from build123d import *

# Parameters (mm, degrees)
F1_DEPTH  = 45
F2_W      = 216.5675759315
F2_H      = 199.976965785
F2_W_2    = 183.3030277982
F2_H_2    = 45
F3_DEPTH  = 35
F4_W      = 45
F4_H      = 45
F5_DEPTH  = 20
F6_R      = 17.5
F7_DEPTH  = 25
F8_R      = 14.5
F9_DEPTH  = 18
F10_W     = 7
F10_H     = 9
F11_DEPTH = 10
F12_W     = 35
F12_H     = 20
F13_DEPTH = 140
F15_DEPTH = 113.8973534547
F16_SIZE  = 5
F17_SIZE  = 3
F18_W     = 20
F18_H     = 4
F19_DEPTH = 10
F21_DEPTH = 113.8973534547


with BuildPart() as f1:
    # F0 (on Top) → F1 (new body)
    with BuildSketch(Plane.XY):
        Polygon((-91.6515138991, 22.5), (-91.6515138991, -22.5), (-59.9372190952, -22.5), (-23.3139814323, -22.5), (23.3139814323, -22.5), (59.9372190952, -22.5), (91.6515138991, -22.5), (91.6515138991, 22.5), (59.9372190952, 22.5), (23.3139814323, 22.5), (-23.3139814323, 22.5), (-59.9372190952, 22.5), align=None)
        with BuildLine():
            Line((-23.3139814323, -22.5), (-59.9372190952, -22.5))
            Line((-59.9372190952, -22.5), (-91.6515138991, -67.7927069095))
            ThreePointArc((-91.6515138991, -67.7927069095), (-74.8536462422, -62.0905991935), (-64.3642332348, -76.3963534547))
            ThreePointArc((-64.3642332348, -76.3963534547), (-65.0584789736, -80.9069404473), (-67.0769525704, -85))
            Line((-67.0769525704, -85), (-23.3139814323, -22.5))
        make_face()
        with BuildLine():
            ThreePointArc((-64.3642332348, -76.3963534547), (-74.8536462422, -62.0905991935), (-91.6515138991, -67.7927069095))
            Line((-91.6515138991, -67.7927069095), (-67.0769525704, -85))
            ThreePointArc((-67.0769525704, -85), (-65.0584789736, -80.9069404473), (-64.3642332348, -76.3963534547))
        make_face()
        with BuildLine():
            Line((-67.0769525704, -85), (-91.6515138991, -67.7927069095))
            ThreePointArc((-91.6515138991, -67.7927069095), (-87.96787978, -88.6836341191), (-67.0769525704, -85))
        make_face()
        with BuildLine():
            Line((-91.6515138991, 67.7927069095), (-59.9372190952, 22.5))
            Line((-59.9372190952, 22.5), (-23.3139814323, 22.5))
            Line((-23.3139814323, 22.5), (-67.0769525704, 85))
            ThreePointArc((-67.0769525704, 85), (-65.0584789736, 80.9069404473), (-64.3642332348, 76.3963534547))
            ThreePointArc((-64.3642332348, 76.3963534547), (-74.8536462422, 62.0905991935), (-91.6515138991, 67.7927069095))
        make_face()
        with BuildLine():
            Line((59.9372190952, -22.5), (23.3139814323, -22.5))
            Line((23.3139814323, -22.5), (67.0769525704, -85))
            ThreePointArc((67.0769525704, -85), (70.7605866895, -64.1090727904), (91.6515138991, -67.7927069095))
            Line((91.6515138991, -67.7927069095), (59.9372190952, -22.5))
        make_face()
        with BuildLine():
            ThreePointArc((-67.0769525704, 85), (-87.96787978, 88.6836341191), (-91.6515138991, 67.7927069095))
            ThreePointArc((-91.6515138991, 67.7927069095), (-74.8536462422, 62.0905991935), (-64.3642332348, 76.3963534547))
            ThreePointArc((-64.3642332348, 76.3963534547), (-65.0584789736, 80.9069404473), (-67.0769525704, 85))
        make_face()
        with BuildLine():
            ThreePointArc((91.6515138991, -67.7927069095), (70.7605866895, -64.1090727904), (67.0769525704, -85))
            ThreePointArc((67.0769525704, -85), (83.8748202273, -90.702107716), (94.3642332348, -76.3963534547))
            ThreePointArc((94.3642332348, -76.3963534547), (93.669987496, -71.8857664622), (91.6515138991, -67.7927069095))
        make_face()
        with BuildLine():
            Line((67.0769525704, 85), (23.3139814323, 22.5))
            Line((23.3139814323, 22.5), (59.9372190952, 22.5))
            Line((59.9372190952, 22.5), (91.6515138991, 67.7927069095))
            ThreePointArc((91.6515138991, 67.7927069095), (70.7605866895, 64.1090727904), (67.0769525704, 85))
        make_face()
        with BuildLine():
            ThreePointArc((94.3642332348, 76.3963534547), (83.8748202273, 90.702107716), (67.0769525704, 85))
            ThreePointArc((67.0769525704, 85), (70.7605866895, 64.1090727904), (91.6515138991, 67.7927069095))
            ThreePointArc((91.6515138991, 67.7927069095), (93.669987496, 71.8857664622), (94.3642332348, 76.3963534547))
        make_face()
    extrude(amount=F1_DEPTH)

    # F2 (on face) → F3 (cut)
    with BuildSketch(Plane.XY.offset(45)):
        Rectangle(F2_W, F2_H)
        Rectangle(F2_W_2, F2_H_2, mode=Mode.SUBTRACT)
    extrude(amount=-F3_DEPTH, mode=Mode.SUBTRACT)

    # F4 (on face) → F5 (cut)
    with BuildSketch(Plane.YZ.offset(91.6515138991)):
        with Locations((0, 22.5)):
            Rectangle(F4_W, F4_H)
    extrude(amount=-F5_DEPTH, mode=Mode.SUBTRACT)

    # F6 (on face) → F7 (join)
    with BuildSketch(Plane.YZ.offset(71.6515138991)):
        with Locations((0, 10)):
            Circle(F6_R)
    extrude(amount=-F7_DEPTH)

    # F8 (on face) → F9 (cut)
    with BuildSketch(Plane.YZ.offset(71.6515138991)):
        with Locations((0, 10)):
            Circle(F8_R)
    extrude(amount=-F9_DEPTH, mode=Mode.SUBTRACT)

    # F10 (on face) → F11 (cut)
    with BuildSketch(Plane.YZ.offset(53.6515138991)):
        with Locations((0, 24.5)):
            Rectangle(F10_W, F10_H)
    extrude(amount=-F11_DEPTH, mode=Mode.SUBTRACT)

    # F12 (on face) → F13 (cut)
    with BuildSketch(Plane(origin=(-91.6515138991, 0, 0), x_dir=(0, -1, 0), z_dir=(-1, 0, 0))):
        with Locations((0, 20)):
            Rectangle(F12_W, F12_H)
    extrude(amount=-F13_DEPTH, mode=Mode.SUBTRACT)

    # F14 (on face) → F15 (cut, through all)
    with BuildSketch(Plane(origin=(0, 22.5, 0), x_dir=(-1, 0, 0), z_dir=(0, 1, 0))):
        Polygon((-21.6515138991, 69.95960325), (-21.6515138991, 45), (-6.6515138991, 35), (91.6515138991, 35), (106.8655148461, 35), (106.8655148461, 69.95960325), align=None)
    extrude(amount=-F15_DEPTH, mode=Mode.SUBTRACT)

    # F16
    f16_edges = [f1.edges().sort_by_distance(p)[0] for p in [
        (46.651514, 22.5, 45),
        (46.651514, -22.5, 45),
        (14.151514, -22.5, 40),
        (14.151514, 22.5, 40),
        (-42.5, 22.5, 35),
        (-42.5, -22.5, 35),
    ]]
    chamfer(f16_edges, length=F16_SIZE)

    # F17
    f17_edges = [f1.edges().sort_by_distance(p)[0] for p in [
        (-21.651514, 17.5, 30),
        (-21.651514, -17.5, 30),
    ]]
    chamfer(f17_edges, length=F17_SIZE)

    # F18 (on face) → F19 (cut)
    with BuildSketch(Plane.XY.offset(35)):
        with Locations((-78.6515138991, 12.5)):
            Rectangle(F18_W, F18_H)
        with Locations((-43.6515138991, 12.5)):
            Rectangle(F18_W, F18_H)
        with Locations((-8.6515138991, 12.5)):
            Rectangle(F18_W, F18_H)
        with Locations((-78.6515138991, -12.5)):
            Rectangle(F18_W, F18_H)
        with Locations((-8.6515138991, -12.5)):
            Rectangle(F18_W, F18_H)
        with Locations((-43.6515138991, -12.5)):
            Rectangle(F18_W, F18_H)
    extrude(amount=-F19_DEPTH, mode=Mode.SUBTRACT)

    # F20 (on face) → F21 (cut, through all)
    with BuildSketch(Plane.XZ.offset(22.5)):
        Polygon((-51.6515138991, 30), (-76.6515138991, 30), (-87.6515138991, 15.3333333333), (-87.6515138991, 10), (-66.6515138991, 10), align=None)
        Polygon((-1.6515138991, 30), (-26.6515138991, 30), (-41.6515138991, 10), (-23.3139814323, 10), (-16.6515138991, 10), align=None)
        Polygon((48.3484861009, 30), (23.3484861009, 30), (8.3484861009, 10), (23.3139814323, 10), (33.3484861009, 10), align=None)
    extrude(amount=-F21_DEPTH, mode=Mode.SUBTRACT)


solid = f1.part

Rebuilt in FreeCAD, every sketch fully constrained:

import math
import FreeCAD as App
import Part
import Sketcher

V = App.Vector
Q = App.Units.Quantity


def edges_at(feature, points):
    """Names of the edges that pass closest to the given points."""
    edges = feature.Shape.Edges
    near = lambda p: min(range(len(edges)), key=lambda i: edges[i].distToShape(Part.Vertex(*p))[0])
    return sorted({f"Edge{near(p) + 1}" for p in points})

doc = App.newDocument("Part")
params = doc.addObject("Spreadsheet::Sheet", "Params")
for row, (alias, value) in enumerate([
    ("sketch1_radius", "15 mm"),
    ("sketch1_height", "45 mm"),
    ("pad1_length", "45 mm"),
    ("sketch2_height", "45 mm"),
    ("pocket1_length", "35 mm"),
    ("sketch3_width", "45 mm"),
    ("pocket2_length", "20 mm"),
    ("sketch4_diameter", "35 mm"),
    ("pad2_length", "25 mm"),
    ("sketch5_diameter", "29 mm"),
    ("pocket3_length", "18 mm"),
    ("sketch6_width", "7 mm"),
    ("sketch6_height", "9 mm"),
    ("pocket4_length", "10 mm"),
    ("sketch7_width", "35 mm"),
    ("sketch7_height", "20 mm"),
    ("pocket5_length", "140 mm"),
    ("chamfer_size", "5 mm"),
    ("chamfer2_size", "3 mm"),
    ("sketch9_width", "20 mm"),
    ("sketch9_height", "4 mm"),
    ("pocket7_length", "10 mm"),
    ("sketch10_width", "25 mm"),
    ("sketch10_width2", "21 mm"),
    ("sketch10_length", "25 mm"),
], start=1):
    params.set(f"A{row}", alias)
    params.set(f"B{row}", "=" + value)
    params.setAlias(f"B{row}", alias)

body = doc.addObject("PartDesign::Body", "Body")

# Sketch on XY plane
sketch1 = body.newObject("Sketcher::SketchObject", "Sketch")
sketch1.AttachmentSupport = (doc.getObject("XY_Plane"), [""])
sketch1.MapMode = "FlatFace"
sketch1.addGeometry([
    Part.LineSegment(V(-91.651514, 22.5, 0), V(-91.651514, -22.5, 0)),  # 0
    Part.LineSegment(V(-91.651514, -22.5, 0), V(-59.937219, -22.5, 0)),  # 1
    Part.LineSegment(V(-59.937219, -22.5, 0), V(-91.651514, -67.792707, 0)),  # 2
    Part.ArcOfCircle(Part.Circle(V(-79.364233, -76.396353, 0), V(0, 0, 1), 15), math.radians(145), math.radians(325)),  # 3
    Part.LineSegment(V(-67.076953, -85, 0), V(-23.313981, -22.5, 0)),  # 4
    Part.LineSegment(V(-23.313981, -22.5, 0), V(23.313981, -22.5, 0)),  # 5
    Part.LineSegment(V(23.313981, -22.5, 0), V(67.076953, -85, 0)),  # 6
    Part.ArcOfCircle(Part.Circle(V(79.364233, -76.396353, 0), V(0, 0, 1), 15), math.radians(-145), math.radians(0)),  # 7
    Part.ArcOfCircle(Part.Circle(V(79.364233, -76.396353, 0), V(0, 0, 1), 15), math.radians(0), math.radians(35)),  # 8
    Part.LineSegment(V(91.651514, -67.792707, 0), V(59.937219, -22.5, 0)),  # 9
    Part.LineSegment(V(59.937219, -22.5, 0), V(91.651514, -22.5, 0)),  # 10
    Part.LineSegment(V(91.651514, -22.5, 0), V(91.651514, 22.5, 0)),  # 11
    Part.LineSegment(V(91.651514, 22.5, 0), V(59.937219, 22.5, 0)),  # 12
    Part.LineSegment(V(59.937219, 22.5, 0), V(91.651514, 67.792707, 0)),  # 13
    Part.ArcOfCircle(Part.Circle(V(79.364233, 76.396353, 0), V(0, 0, 1), 15), math.radians(-35), math.radians(0)),  # 14
    Part.ArcOfCircle(Part.Circle(V(79.364233, 76.396353, 0), V(0, 0, 1), 15), math.radians(0), math.radians(145)),  # 15
    Part.LineSegment(V(67.076953, 85, 0), V(23.313981, 22.5, 0)),  # 16
    Part.LineSegment(V(23.313981, 22.5, 0), V(-23.313981, 22.5, 0)),  # 17
    Part.LineSegment(V(-23.313981, 22.5, 0), V(-67.076953, 85, 0)),  # 18
    Part.ArcOfCircle(Part.Circle(V(-79.364233, 76.396353, 0), V(0, 0, 1), 15), math.radians(35), math.radians(215)),  # 19
    Part.LineSegment(V(-91.651514, 67.792707, 0), V(-59.937219, 22.5, 0)),  # 20
    Part.LineSegment(V(-59.937219, 22.5, 0), V(-91.651514, 22.5, 0)),  # 21
], False)
sketch1.addConstraint([
    Sketcher.Constraint("Coincident", 0, 2, 1, 1),
    Sketcher.Constraint("Coincident", 1, 2, 2, 1),
    Sketcher.Constraint("Tangent", 2, 2, 3, 1),
    Sketcher.Constraint("Tangent", 3, 2, 4, 1),
    Sketcher.Constraint("Coincident", 4, 2, 5, 1),
    Sketcher.Constraint("Coincident", 5, 2, 6, 1),
    Sketcher.Constraint("Tangent", 6, 2, 7, 1),
    Sketcher.Constraint("Tangent", 7, 2, 8, 1),
    Sketcher.Constraint("Tangent", 8, 2, 9, 1),
    Sketcher.Constraint("Coincident", 9, 2, 10, 1),
    Sketcher.Constraint("Coincident", 10, 2, 11, 1),
    Sketcher.Constraint("Coincident", 11, 2, 12, 1),
    Sketcher.Constraint("Coincident", 12, 2, 13, 1),
    Sketcher.Constraint("Tangent", 13, 2, 14, 1),
    Sketcher.Constraint("Tangent", 14, 2, 15, 1),
    Sketcher.Constraint("Tangent", 15, 2, 16, 1),
    Sketcher.Constraint("Coincident", 16, 2, 17, 1),
    Sketcher.Constraint("Coincident", 17, 2, 18, 1),
    Sketcher.Constraint("Tangent", 18, 2, 19, 1),
    Sketcher.Constraint("Tangent", 19, 2, 20, 1),
    Sketcher.Constraint("Coincident", 20, 2, 21, 1),
    Sketcher.Constraint("Coincident", 21, 2, 0, 1),
    Sketcher.Constraint("Vertical", 0),
    Sketcher.Constraint("Horizontal", 1),
    Sketcher.Constraint("Horizontal", 5),
    Sketcher.Constraint("Horizontal", 10),
    Sketcher.Constraint("Vertical", 11),
    Sketcher.Constraint("Horizontal", 12),
    Sketcher.Constraint("Horizontal", 17),
    Sketcher.Constraint("Horizontal", 21),
    Sketcher.Constraint("Equal", 3, 7),
    Sketcher.Constraint("Equal", 7, 8),
    Sketcher.Constraint("Equal", 8, 14),
    Sketcher.Constraint("Equal", 14, 15),
    Sketcher.Constraint("Equal", 15, 19),
    Sketcher.Constraint("Symmetric", 3, 3, 14, 3, -1, 1),
    Sketcher.Constraint("Symmetric", 7, 3, 19, 3, -1, 1),
    Sketcher.Constraint("Symmetric", 0, 2, 11, 2, -1, 1),
    Sketcher.Constraint("Symmetric", 4, 2, 16, 2, -1, 1),
    Sketcher.Constraint("Symmetric", 9, 2, 20, 2, -1, 1),
    Sketcher.Constraint("Symmetric", 3, 3, 7, 3, -2),
    Sketcher.Constraint("Symmetric", 1, 2, 9, 2, -2),
    Sketcher.Constraint("Parallel", 2, 4),
    Sketcher.Constraint("Parallel", 6, 9),
    Sketcher.Constraint("Parallel", 4, 13),
    Sketcher.Constraint("Parallel", 9, 18),
    Sketcher.Constraint("Horizontal", 1, 2, 4, 2),
    Sketcher.Constraint("Horizontal", 8, 3, 7, 2),
    Sketcher.Constraint("Horizontal", 19, 3, 14, 2),
    Sketcher.Constraint("Vertical", 0, 2, 2, 2),
    Sketcher.Constraint("Radius", 3, Q("15 mm")),
    Sketcher.Constraint("DistanceY", 0, 2, 0, 1, Q("45 mm")),
    Sketcher.Constraint("Angle", 2, Q("-125 deg")),
    Sketcher.Constraint("DistanceY", 3, 2, -1, 1, Q("85 mm")),
    Sketcher.Constraint("DistanceX", 1, 2, 5, 2, Q("83.251201 mm")),
])
sketch1.setExpression("Constraints[50]", "Params.sketch1_radius")
sketch1.setExpression("Constraints[51]", "Params.sketch1_height")
pad1 = body.newObject("PartDesign::Pad", "Pad")
pad1.Profile = sketch1
pad1.setExpression("Length", "Params.pad1_length")

# Sketch on XY plane
sketch2 = body.newObject("Sketcher::SketchObject", "Sketch001")
sketch2.AttachmentSupport = (doc.getObject("XY_Plane"), [""])
sketch2.MapMode = "FlatFace"
sketch2.AttachmentOffset = App.Placement(V(0, 0, 45), App.Rotation())
sketch2.addGeometry([
    Part.LineSegment(V(-108.283788, 99.988483, 0), V(-108.283788, -99.988483, 0)),  # 0
    Part.LineSegment(V(-108.283788, -99.988483, 0), V(108.283788, -99.988483, 0)),  # 1
    Part.LineSegment(V(108.283788, -99.988483, 0), V(108.283788, 99.988483, 0)),  # 2
    Part.LineSegment(V(108.283788, 99.988483, 0), V(-108.283788, 99.988483, 0)),  # 3
    Part.LineSegment(V(91.651514, -22.5, 0), V(-91.651514, -22.5, 0)),  # 4
    Part.LineSegment(V(-91.651514, -22.5, 0), V(-91.651514, 22.5, 0)),  # 5
    Part.LineSegment(V(-91.651514, 22.5, 0), V(91.651514, 22.5, 0)),  # 6
    Part.LineSegment(V(91.651514, 22.5, 0), V(91.651514, -22.5, 0)),  # 7
], False)
sketch2.addConstraint([
    Sketcher.Constraint("Coincident", 0, 2, 1, 1),
    Sketcher.Constraint("Coincident", 1, 2, 2, 1),
    Sketcher.Constraint("Coincident", 2, 2, 3, 1),
    Sketcher.Constraint("Coincident", 3, 2, 0, 1),
    Sketcher.Constraint("Coincident", 4, 2, 5, 1),
    Sketcher.Constraint("Coincident", 5, 2, 6, 1),
    Sketcher.Constraint("Coincident", 6, 2, 7, 1),
    Sketcher.Constraint("Coincident", 7, 2, 4, 1),
    Sketcher.Constraint("Vertical", 0),
    Sketcher.Constraint("Horizontal", 1),
    Sketcher.Constraint("Vertical", 2),
    Sketcher.Constraint("Horizontal", 3),
    Sketcher.Constraint("Horizontal", 4),
    Sketcher.Constraint("Vertical", 5),
    Sketcher.Constraint("Horizontal", 6),
    Sketcher.Constraint("Vertical", 7),
    Sketcher.Constraint("Symmetric", 0, 2, 2, 2, -1, 1),
    Sketcher.Constraint("Symmetric", 4, 2, 6, 2, -1, 1),
    Sketcher.Constraint("DistanceY", 5, 1, 5, 2, Q("45 mm")),
    Sketcher.Constraint("DistanceX", 4, 2, 1, 2, Q("199.935302 mm")),
    Sketcher.Constraint("DistanceX", 1, 1, 1, 2, Q("216.567576 mm")),
    Sketcher.Constraint("DistanceY", 0, 2, 0, 1, Q("199.976966 mm")),
])
sketch2.setExpression("Constraints[18]", "Params.sketch2_height")
pocket1 = body.newObject("PartDesign::Pocket", "Pocket")
pocket1.Profile = sketch2
pocket1.setExpression("Length", "Params.pocket1_length")

# Sketch on YZ plane
sketch3 = body.newObject("Sketcher::SketchObject", "Sketch002")
sketch3.AttachmentSupport = (doc.getObject("YZ_Plane"), [""])
sketch3.MapMode = "FlatFace"
sketch3.AttachmentOffset = App.Placement(V(0, 0, 91.651514), App.Rotation())
sketch3.addGeometry([
    Part.LineSegment(V(-22.5, 45, 0), V(-22.5, 0, 0)),
    Part.LineSegment(V(-22.5, 0, 0), V(22.5, 0, 0)),
    Part.LineSegment(V(22.5, 0, 0), V(22.5, 45, 0)),
    Part.LineSegment(V(22.5, 45, 0), V(-22.5, 45, 0)),
], False)
sketch3.addConstraint([
    Sketcher.Constraint("Coincident", 0, 2, 1, 1),
    Sketcher.Constraint("Coincident", 1, 2, 2, 1),
    Sketcher.Constraint("Coincident", 2, 2, 3, 1),
    Sketcher.Constraint("Coincident", 3, 2, 0, 1),
    Sketcher.Constraint("Vertical", 0),
    Sketcher.Constraint("Horizontal", 1),
    Sketcher.Constraint("Vertical", 2),
    Sketcher.Constraint("Horizontal", 3),
    Sketcher.Constraint("Symmetric", 0, 2, 1, 2, -1, 1),
    Sketcher.Constraint("Equal", 3, 0),
    Sketcher.Constraint("DistanceX", 1, 1, 1, 2, Q("45 mm")),
])
sketch3.setExpression("Constraints[10]", "Params.sketch3_width")
pocket2 = body.newObject("PartDesign::Pocket", "Pocket001")
pocket2.Profile = sketch3
pocket2.setExpression("Length", "Params.pocket2_length")

# Sketch on YZ plane
sketch4 = body.newObject("Sketcher::SketchObject", "Sketch003")
sketch4.AttachmentSupport = (doc.getObject("YZ_Plane"), [""])
sketch4.MapMode = "FlatFace"
sketch4.AttachmentOffset = App.Placement(V(0, 0, 71.651514), App.Rotation())
sketch4.addGeometry(Part.Circle(V(0, 10, 0), V(0, 0, 1), 17.5), False)
sketch4.addConstraint([
    Sketcher.Constraint("PointOnObject", 0, 3, -2),
    Sketcher.Constraint("Diameter", 0, Q("35 mm")),
    Sketcher.Constraint("DistanceY", -1, 1, 0, 3, Q("10 mm")),
])
sketch4.setExpression("Constraints[1]", "Params.sketch4_diameter")
pad2 = body.newObject("PartDesign::Pad", "Pad001")
pad2.Profile = sketch4
pad2.setExpression("Length", "Params.pad2_length")
pad2.Reversed = True

# Sketch on YZ plane
sketch5 = body.newObject("Sketcher::SketchObject", "Sketch004")
sketch5.AttachmentSupport = (doc.getObject("YZ_Plane"), [""])
sketch5.MapMode = "FlatFace"
sketch5.AttachmentOffset = App.Placement(V(0, 0, 71.651514), App.Rotation())
sketch5.addGeometry(Part.Circle(V(0, 10, 0), V(0, 0, 1), 14.5), False)
sketch5.addConstraint([
    Sketcher.Constraint("PointOnObject", 0, 3, -2),
    Sketcher.Constraint("Diameter", 0, Q("29 mm")),
    Sketcher.Constraint("DistanceY", -1, 1, 0, 3, Q("10 mm")),
])
sketch5.setExpression("Constraints[1]", "Params.sketch5_diameter")
pocket3 = body.newObject("PartDesign::Pocket", "Pocket002")
pocket3.Profile = sketch5
pocket3.setExpression("Length", "Params.pocket3_length")

# Sketch on YZ plane
sketch6 = body.newObject("Sketcher::SketchObject", "Sketch005")
sketch6.AttachmentSupport = (doc.getObject("YZ_Plane"), [""])
sketch6.MapMode = "FlatFace"
sketch6.AttachmentOffset = App.Placement(V(0, 0, 53.651514), App.Rotation())
sketch6.addGeometry([
    Part.LineSegment(V(-3.5, 29, 0), V(-3.5, 20, 0)),
    Part.LineSegment(V(-3.5, 20, 0), V(3.5, 20, 0)),
    Part.LineSegment(V(3.5, 20, 0), V(3.5, 29, 0)),
    Part.LineSegment(V(3.5, 29, 0), V(-3.5, 29, 0)),
], False)
sketch6.addConstraint([
    Sketcher.Constraint("Coincident", 0, 2, 1, 1),
    Sketcher.Constraint("Coincident", 1, 2, 2, 1),
    Sketcher.Constraint("Coincident", 2, 2, 3, 1),
    Sketcher.Constraint("Coincident", 3, 2, 0, 1),
    Sketcher.Constraint("Vertical", 0),
    Sketcher.Constraint("Horizontal", 1),
    Sketcher.Constraint("Vertical", 2),
    Sketcher.Constraint("Horizontal", 3),
    Sketcher.Constraint("DistanceX", 1, 1, 1, 2, Q("7 mm")),
    Sketcher.Constraint("DistanceY", 0, 2, 0, 1, Q("9 mm")),
    Sketcher.Constraint("DistanceY", -1, 1, 0, 2, Q("20 mm")),
    Sketcher.Constraint("DistanceX", 0, 2, -1, 1, Q("3.5 mm")),
])
sketch6.setExpression("Constraints[8]", "Params.sketch6_width")
sketch6.setExpression("Constraints[9]", "Params.sketch6_height")
pocket4 = body.newObject("PartDesign::Pocket", "Pocket003")
pocket4.Profile = sketch6
pocket4.setExpression("Length", "Params.pocket4_length")

# Sketch on YZ plane
sketch7 = body.newObject("Sketcher::SketchObject", "Sketch006")
sketch7.AttachmentSupport = (doc.getObject("YZ_Plane"), [""])
sketch7.MapMode = "FlatFace"
sketch7.AttachmentOffset = App.Placement(V(0, 0, -91.651514), App.Rotation())
sketch7.addGeometry([
    Part.LineSegment(V(17.5, 30, 0), V(17.5, 10, 0)),
    Part.LineSegment(V(17.5, 10, 0), V(-17.5, 10, 0)),
    Part.LineSegment(V(-17.5, 10, 0), V(-17.5, 30, 0)),
    Part.LineSegment(V(-17.5, 30, 0), V(17.5, 30, 0)),
], False)
sketch7.addConstraint([
    Sketcher.Constraint("Coincident", 0, 2, 1, 1),
    Sketcher.Constraint("Coincident", 1, 2, 2, 1),
    Sketcher.Constraint("Coincident", 2, 2, 3, 1),
    Sketcher.Constraint("Coincident", 3, 2, 0, 1),
    Sketcher.Constraint("Vertical", 0),
    Sketcher.Constraint("Horizontal", 1),
    Sketcher.Constraint("Vertical", 2),
    Sketcher.Constraint("Horizontal", 3),
    Sketcher.Constraint("DistanceX", 1, 2, 1, 1, Q("35 mm")),
    Sketcher.Constraint("DistanceY", 0, 2, 0, 1, Q("20 mm")),
    Sketcher.Constraint("DistanceY", -1, 1, 0, 2, Q("10 mm")),
    Sketcher.Constraint("DistanceX", -1, 1, 0, 2, Q("17.5 mm")),
])
sketch7.setExpression("Constraints[8]", "Params.sketch7_width")
sketch7.setExpression("Constraints[9]", "Params.sketch7_height")
pocket5 = body.newObject("PartDesign::Pocket", "Pocket004")
pocket5.Profile = sketch7
pocket5.setExpression("Length", "Params.pocket5_length")
pocket5.Reversed = True

# Sketch on XZ plane
sketch8 = body.newObject("Sketcher::SketchObject", "Sketch007")
sketch8.AttachmentSupport = (doc.getObject("XZ_Plane"), [""])
sketch8.MapMode = "FlatFace"
sketch8.AttachmentOffset = App.Placement(V(0, 0, -22.5), App.Rotation())
sketch8.addGeometry([
    Part.LineSegment(V(21.651514, 69.959603, 0), V(21.651514, 45, 0)),  # 0
    Part.LineSegment(V(21.651514, 45, 0), V(6.651514, 35, 0)),  # 1
    Part.LineSegment(V(6.651514, 35, 0), V(-106.865515, 35, 0)),  # 2
    Part.LineSegment(V(-106.865515, 35, 0), V(-106.865515, 69.959603, 0)),  # 3
    Part.LineSegment(V(-106.865515, 69.959603, 0), V(21.651514, 69.959603, 0)),  # 4
], False)
sketch8.addConstraint([
    Sketcher.Constraint("Coincident", 0, 2, 1, 1),
    Sketcher.Constraint("Coincident", 1, 2, 2, 1),
    Sketcher.Constraint("Coincident", 2, 2, 3, 1),
    Sketcher.Constraint("Coincident", 3, 2, 4, 1),
    Sketcher.Constraint("Coincident", 4, 2, 0, 1),
    Sketcher.Constraint("Vertical", 0),
    Sketcher.Constraint("Horizontal", 2),
    Sketcher.Constraint("Vertical", 3),
    Sketcher.Constraint("Horizontal", 4),
    Sketcher.Constraint("DistanceY", -1, 1, 0, 2, Q("45 mm")),
    Sketcher.Constraint("DistanceY", -1, 1, 1, 2, Q("35 mm")),
    Sketcher.Constraint("DistanceX", 1, 2, 0, 2, Q("15 mm")),
    Sketcher.Constraint("DistanceX", 2, 2, 2, 1, Q("113.517029 mm")),
    Sketcher.Constraint("DistanceY", 0, 2, 0, 1, Q("24.959603 mm")),
    Sketcher.Constraint("DistanceX", -1, 1, 0, 2, Q("21.651514 mm")),
])
pocket6 = body.newObject("PartDesign::Pocket", "Pocket005")
pocket6.Profile = sketch8
pocket6.Type = "ThroughAll"
pocket6.Reversed = True
doc.recompute()

chamfer = body.newObject("PartDesign::Chamfer", "Chamfer")
chamfer.Base = (pocket6, edges_at(pocket6, [
    (46.652, 22.5, 45),
    (46.652, -22.5, 45),
    (14.152, -22.5, 40),
    (14.152, 22.5, 40),
    (-42.5, 22.5, 35),
    (-42.5, -22.5, 35),
]))
chamfer.setExpression("Size", "Params.chamfer_size")
doc.recompute()

chamfer2 = body.newObject("PartDesign::Chamfer", "Chamfer001")
chamfer2.Base = (chamfer, edges_at(chamfer, [(-21.652, 17.5, 30), (-21.652, -17.5, 30)]))
chamfer2.setExpression("Size", "Params.chamfer2_size")

# Sketch on XY plane
sketch9 = body.newObject("Sketcher::SketchObject", "Sketch008")
sketch9.AttachmentSupport = (doc.getObject("XY_Plane"), [""])
sketch9.MapMode = "FlatFace"
sketch9.AttachmentOffset = App.Placement(V(0, 0, 35), App.Rotation())
sketch9.addGeometry([
    Part.LineSegment(V(-88.651514, 14.5, 0), V(-88.651514, 10.5, 0)),  # 0
    Part.LineSegment(V(-88.651514, 10.5, 0), V(-68.651514, 10.5, 0)),  # 1
    Part.LineSegment(V(-68.651514, 10.5, 0), V(-68.651514, 14.5, 0)),  # 2
    Part.LineSegment(V(-68.651514, 14.5, 0), V(-88.651514, 14.5, 0)),  # 3
    Part.LineSegment(V(-53.651514, 14.5, 0), V(-53.651514, 10.5, 0)),  # 4
    Part.LineSegment(V(-53.651514, 10.5, 0), V(-33.651514, 10.5, 0)),  # 5
    Part.LineSegment(V(-33.651514, 10.5, 0), V(-33.651514, 14.5, 0)),  # 6
    Part.LineSegment(V(-33.651514, 14.5, 0), V(-53.651514, 14.5, 0)),  # 7
    Part.LineSegment(V(-18.651514, 14.5, 0), V(-18.651514, 10.5, 0)),  # 8
    Part.LineSegment(V(-18.651514, 10.5, 0), V(1.348486, 10.5, 0)),  # 9
    Part.LineSegment(V(1.348486, 10.5, 0), V(1.348486, 14.5, 0)),  # 10
    Part.LineSegment(V(1.348486, 14.5, 0), V(-18.651514, 14.5, 0)),  # 11
    Part.LineSegment(V(-88.651514, -10.5, 0), V(-88.651514, -14.5, 0)),  # 12
    Part.LineSegment(V(-88.651514, -14.5, 0), V(-68.651514, -14.5, 0)),  # 13
    Part.LineSegment(V(-68.651514, -14.5, 0), V(-68.651514, -10.5, 0)),  # 14
    Part.LineSegment(V(-68.651514, -10.5, 0), V(-88.651514, -10.5, 0)),  # 15
    Part.LineSegment(V(-18.651514, -10.5, 0), V(-18.651514, -14.5, 0)),  # 16
    Part.LineSegment(V(-18.651514, -14.5, 0), V(1.348486, -14.5, 0)),  # 17
    Part.LineSegment(V(1.348486, -14.5, 0), V(1.348486, -10.5, 0)),  # 18
    Part.LineSegment(V(1.348486, -10.5, 0), V(-18.651514, -10.5, 0)),  # 19
    Part.LineSegment(V(-53.651514, -10.5, 0), V(-53.651514, -14.5, 0)),  # 20
    Part.LineSegment(V(-53.651514, -14.5, 0), V(-33.651514, -14.5, 0)),  # 21
    Part.LineSegment(V(-33.651514, -14.5, 0), V(-33.651514, -10.5, 0)),  # 22
    Part.LineSegment(V(-33.651514, -10.5, 0), V(-53.651514, -10.5, 0)),  # 23
], False)
sketch9.addConstraint([
    Sketcher.Constraint("Coincident", 0, 2, 1, 1),
    Sketcher.Constraint("Coincident", 1, 2, 2, 1),
    Sketcher.Constraint("Coincident", 2, 2, 3, 1),
    Sketcher.Constraint("Coincident", 3, 2, 0, 1),
    Sketcher.Constraint("Coincident", 4, 2, 5, 1),
    Sketcher.Constraint("Coincident", 5, 2, 6, 1),
    Sketcher.Constraint("Coincident", 6, 2, 7, 1),
    Sketcher.Constraint("Coincident", 7, 2, 4, 1),
    Sketcher.Constraint("Coincident", 8, 2, 9, 1),
    Sketcher.Constraint("Coincident", 9, 2, 10, 1),
    Sketcher.Constraint("Coincident", 10, 2, 11, 1),
    Sketcher.Constraint("Coincident", 11, 2, 8, 1),
    Sketcher.Constraint("Coincident", 12, 2, 13, 1),
    Sketcher.Constraint("Coincident", 13, 2, 14, 1),
    Sketcher.Constraint("Coincident", 14, 2, 15, 1),
    Sketcher.Constraint("Coincident", 15, 2, 12, 1),
    Sketcher.Constraint("Coincident", 16, 2, 17, 1),
    Sketcher.Constraint("Coincident", 17, 2, 18, 1),
    Sketcher.Constraint("Coincident", 18, 2, 19, 1),
    Sketcher.Constraint("Coincident", 19, 2, 16, 1),
    Sketcher.Constraint("Coincident", 20, 2, 21, 1),
    Sketcher.Constraint("Coincident", 21, 2, 22, 1),
    Sketcher.Constraint("Coincident", 22, 2, 23, 1),
    Sketcher.Constraint("Coincident", 23, 2, 20, 1),
    Sketcher.Constraint("Vertical", 0),
    Sketcher.Constraint("Horizontal", 1),
    Sketcher.Constraint("Vertical", 2),
    Sketcher.Constraint("Horizontal", 3),
    Sketcher.Constraint("Vertical", 4),
    Sketcher.Constraint("Horizontal", 5),
    Sketcher.Constraint("Vertical", 6),
    Sketcher.Constraint("Horizontal", 7),
    Sketcher.Constraint("Vertical", 8),
    Sketcher.Constraint("Horizontal", 9),
    Sketcher.Constraint("Vertical", 10),
    Sketcher.Constraint("Horizontal", 11),
    Sketcher.Constraint("Vertical", 12),
    Sketcher.Constraint("Horizontal", 13),
    Sketcher.Constraint("Vertical", 14),
    Sketcher.Constraint("Horizontal", 15),
    Sketcher.Constraint("Vertical", 16),
    Sketcher.Constraint("Horizontal", 17),
    Sketcher.Constraint("Vertical", 18),
    Sketcher.Constraint("Horizontal", 19),
    Sketcher.Constraint("Vertical", 20),
    Sketcher.Constraint("Horizontal", 21),
    Sketcher.Constraint("Vertical", 22),
    Sketcher.Constraint("Horizontal", 23),
    Sketcher.Constraint("Symmetric", 3, 2, 12, 2, -1),
    Sketcher.Constraint("Symmetric", 1, 2, 14, 2, -1),
    Sketcher.Constraint("Symmetric", 11, 2, 16, 2, -1),
    Sketcher.Constraint("Symmetric", 9, 2, 18, 2, -1),
    Sketcher.Constraint("Symmetric", 7, 2, 20, 2, -1),
    Sketcher.Constraint("Symmetric", 5, 2, 22, 2, -1),
    Sketcher.Constraint("Horizontal", 1, 2, 4, 2),
    Sketcher.Constraint("Horizontal", 3, 2, 6, 2),
    Sketcher.Constraint("Horizontal", 5, 2, 8, 2),
    Sketcher.Constraint("Horizontal", 7, 2, 10, 2),
    Sketcher.Constraint("Equal", 3, 5),
    Sketcher.Constraint("Equal", 7, 9),
    Sketcher.Constraint("DistanceX", 1, 1, 1, 2, Q("20 mm")),
    Sketcher.Constraint("DistanceY", 0, 2, 0, 1, Q("4 mm")),
    Sketcher.Constraint("DistanceX", 1, 2, 4, 2, Q("15 mm")),
    Sketcher.Constraint("DistanceX", 5, 2, 8, 2, Q("15 mm")),
    Sketcher.Constraint("DistanceY", 12, 2, 0, 2, Q("25 mm")),
    Sketcher.Constraint("DistanceX", 0, 2, -1, 1, Q("88.651514 mm")),
])
sketch9.setExpression("Constraints[60]", "Params.sketch9_width")
sketch9.setExpression("Constraints[61]", "Params.sketch9_height")
pocket7 = body.newObject("PartDesign::Pocket", "Pocket006")
pocket7.Profile = sketch9
pocket7.setExpression("Length", "Params.pocket7_length")

# Sketch on XZ plane
sketch10 = body.newObject("Sketcher::SketchObject", "Sketch009")
sketch10.AttachmentSupport = (doc.getObject("XZ_Plane"), [""])
sketch10.MapMode = "FlatFace"
sketch10.AttachmentOffset = App.Placement(V(0, 0, 22.5), App.Rotation())
sketch10.addGeometry([
    Part.LineSegment(V(-51.651514, 30, 0), V(-76.651514, 30, 0)),  # 0
    Part.LineSegment(V(-76.651514, 30, 0), V(-87.651514, 15.333333, 0)),  # 1
    Part.LineSegment(V(-87.651514, 15.333333, 0), V(-87.651514, 10, 0)),  # 2
    Part.LineSegment(V(-87.651514, 10, 0), V(-66.651514, 10, 0)),  # 3
    Part.LineSegment(V(-66.651514, 10, 0), V(-51.651514, 30, 0)),  # 4
    Part.LineSegment(V(-1.651514, 30, 0), V(-26.651514, 30, 0)),  # 5
    Part.LineSegment(V(-26.651514, 30, 0), V(-41.651514, 10, 0)),  # 6
    Part.LineSegment(V(-41.651514, 10, 0), V(-16.651514, 10, 0)),  # 7
    Part.LineSegment(V(-16.651514, 10, 0), V(-1.651514, 30, 0)),  # 8
    Part.LineSegment(V(48.348486, 30, 0), V(23.348486, 30, 0)),  # 9
    Part.LineSegment(V(23.348486, 30, 0), V(8.348486, 10, 0)),  # 10
    Part.LineSegment(V(8.348486, 10, 0), V(33.348486, 10, 0)),  # 11
    Part.LineSegment(V(33.348486, 10, 0), V(48.348486, 30, 0)),  # 12
], False)
sketch10.addConstraint([
    Sketcher.Constraint("Coincident", 0, 2, 1, 1),
    Sketcher.Constraint("Coincident", 1, 2, 2, 1),
    Sketcher.Constraint("Coincident", 2, 2, 3, 1),
    Sketcher.Constraint("Coincident", 3, 2, 4, 1),
    Sketcher.Constraint("Coincident", 4, 2, 0, 1),
    Sketcher.Constraint("Coincident", 5, 2, 6, 1),
    Sketcher.Constraint("Coincident", 6, 2, 7, 1),
    Sketcher.Constraint("Coincident", 7, 2, 8, 1),
    Sketcher.Constraint("Coincident", 8, 2, 5, 1),
    Sketcher.Constraint("Coincident", 9, 2, 10, 1),
    Sketcher.Constraint("Coincident", 10, 2, 11, 1),
    Sketcher.Constraint("Coincident", 11, 2, 12, 1),
    Sketcher.Constraint("Coincident", 12, 2, 9, 1),
    Sketcher.Constraint("Horizontal", 0),
    Sketcher.Constraint("Vertical", 2),
    Sketcher.Constraint("Horizontal", 3),
    Sketcher.Constraint("Horizontal", 5),
    Sketcher.Constraint("Horizontal", 7),
    Sketcher.Constraint("Horizontal", 9),
    Sketcher.Constraint("Horizontal", 11),
    Sketcher.Constraint("Parallel", 1, 4),
    Sketcher.Constraint("Parallel", 4, 6),
    Sketcher.Constraint("Parallel", 6, 8),
    Sketcher.Constraint("Parallel", 8, 10),
    Sketcher.Constraint("Parallel", 10, 12),
    Sketcher.Constraint("Horizontal", 4, 2, 5, 2),
    Sketcher.Constraint("Horizontal", 3, 2, 6, 2),
    Sketcher.Constraint("Horizontal", 8, 2, 9, 2),
    Sketcher.Constraint("Horizontal", 7, 2, 10, 2),
    Sketcher.Constraint("Equal", 0, 5),
    Sketcher.Constraint("Equal", 7, 9),
    Sketcher.Constraint("DistanceX", 0, 2, 0, 1, Q("25 mm")),
    Sketcher.Constraint("DistanceX", 3, 1, 3, 2, Q("21 mm")),
    Sketcher.Constraint("Distance", 4, Q("25 mm")),
    Sketcher.Constraint("DistanceY", -1, 1, 0, 2, Q("30 mm")),
    Sketcher.Constraint("DistanceY", -1, 1, 2, 2, Q("10 mm")),
    Sketcher.Constraint("DistanceX", 4, 2, 5, 2, Q("25 mm")),
    Sketcher.Constraint("DistanceX", 8, 2, 9, 2, Q("25 mm")),
    Sketcher.Constraint("DistanceX", 0, 2, -1, 1, Q("76.651514 mm")),
])
sketch10.setExpression("Constraints[31]", "Params.sketch10_width")
sketch10.setExpression("Constraints[32]", "Params.sketch10_width2")
sketch10.setExpression("Constraints[33]", "Params.sketch10_length")
pocket8 = body.newObject("PartDesign::Pocket", "Pocket007")
pocket8.Profile = sketch10
pocket8.Type = "ThroughAll"

doc.recompute()
